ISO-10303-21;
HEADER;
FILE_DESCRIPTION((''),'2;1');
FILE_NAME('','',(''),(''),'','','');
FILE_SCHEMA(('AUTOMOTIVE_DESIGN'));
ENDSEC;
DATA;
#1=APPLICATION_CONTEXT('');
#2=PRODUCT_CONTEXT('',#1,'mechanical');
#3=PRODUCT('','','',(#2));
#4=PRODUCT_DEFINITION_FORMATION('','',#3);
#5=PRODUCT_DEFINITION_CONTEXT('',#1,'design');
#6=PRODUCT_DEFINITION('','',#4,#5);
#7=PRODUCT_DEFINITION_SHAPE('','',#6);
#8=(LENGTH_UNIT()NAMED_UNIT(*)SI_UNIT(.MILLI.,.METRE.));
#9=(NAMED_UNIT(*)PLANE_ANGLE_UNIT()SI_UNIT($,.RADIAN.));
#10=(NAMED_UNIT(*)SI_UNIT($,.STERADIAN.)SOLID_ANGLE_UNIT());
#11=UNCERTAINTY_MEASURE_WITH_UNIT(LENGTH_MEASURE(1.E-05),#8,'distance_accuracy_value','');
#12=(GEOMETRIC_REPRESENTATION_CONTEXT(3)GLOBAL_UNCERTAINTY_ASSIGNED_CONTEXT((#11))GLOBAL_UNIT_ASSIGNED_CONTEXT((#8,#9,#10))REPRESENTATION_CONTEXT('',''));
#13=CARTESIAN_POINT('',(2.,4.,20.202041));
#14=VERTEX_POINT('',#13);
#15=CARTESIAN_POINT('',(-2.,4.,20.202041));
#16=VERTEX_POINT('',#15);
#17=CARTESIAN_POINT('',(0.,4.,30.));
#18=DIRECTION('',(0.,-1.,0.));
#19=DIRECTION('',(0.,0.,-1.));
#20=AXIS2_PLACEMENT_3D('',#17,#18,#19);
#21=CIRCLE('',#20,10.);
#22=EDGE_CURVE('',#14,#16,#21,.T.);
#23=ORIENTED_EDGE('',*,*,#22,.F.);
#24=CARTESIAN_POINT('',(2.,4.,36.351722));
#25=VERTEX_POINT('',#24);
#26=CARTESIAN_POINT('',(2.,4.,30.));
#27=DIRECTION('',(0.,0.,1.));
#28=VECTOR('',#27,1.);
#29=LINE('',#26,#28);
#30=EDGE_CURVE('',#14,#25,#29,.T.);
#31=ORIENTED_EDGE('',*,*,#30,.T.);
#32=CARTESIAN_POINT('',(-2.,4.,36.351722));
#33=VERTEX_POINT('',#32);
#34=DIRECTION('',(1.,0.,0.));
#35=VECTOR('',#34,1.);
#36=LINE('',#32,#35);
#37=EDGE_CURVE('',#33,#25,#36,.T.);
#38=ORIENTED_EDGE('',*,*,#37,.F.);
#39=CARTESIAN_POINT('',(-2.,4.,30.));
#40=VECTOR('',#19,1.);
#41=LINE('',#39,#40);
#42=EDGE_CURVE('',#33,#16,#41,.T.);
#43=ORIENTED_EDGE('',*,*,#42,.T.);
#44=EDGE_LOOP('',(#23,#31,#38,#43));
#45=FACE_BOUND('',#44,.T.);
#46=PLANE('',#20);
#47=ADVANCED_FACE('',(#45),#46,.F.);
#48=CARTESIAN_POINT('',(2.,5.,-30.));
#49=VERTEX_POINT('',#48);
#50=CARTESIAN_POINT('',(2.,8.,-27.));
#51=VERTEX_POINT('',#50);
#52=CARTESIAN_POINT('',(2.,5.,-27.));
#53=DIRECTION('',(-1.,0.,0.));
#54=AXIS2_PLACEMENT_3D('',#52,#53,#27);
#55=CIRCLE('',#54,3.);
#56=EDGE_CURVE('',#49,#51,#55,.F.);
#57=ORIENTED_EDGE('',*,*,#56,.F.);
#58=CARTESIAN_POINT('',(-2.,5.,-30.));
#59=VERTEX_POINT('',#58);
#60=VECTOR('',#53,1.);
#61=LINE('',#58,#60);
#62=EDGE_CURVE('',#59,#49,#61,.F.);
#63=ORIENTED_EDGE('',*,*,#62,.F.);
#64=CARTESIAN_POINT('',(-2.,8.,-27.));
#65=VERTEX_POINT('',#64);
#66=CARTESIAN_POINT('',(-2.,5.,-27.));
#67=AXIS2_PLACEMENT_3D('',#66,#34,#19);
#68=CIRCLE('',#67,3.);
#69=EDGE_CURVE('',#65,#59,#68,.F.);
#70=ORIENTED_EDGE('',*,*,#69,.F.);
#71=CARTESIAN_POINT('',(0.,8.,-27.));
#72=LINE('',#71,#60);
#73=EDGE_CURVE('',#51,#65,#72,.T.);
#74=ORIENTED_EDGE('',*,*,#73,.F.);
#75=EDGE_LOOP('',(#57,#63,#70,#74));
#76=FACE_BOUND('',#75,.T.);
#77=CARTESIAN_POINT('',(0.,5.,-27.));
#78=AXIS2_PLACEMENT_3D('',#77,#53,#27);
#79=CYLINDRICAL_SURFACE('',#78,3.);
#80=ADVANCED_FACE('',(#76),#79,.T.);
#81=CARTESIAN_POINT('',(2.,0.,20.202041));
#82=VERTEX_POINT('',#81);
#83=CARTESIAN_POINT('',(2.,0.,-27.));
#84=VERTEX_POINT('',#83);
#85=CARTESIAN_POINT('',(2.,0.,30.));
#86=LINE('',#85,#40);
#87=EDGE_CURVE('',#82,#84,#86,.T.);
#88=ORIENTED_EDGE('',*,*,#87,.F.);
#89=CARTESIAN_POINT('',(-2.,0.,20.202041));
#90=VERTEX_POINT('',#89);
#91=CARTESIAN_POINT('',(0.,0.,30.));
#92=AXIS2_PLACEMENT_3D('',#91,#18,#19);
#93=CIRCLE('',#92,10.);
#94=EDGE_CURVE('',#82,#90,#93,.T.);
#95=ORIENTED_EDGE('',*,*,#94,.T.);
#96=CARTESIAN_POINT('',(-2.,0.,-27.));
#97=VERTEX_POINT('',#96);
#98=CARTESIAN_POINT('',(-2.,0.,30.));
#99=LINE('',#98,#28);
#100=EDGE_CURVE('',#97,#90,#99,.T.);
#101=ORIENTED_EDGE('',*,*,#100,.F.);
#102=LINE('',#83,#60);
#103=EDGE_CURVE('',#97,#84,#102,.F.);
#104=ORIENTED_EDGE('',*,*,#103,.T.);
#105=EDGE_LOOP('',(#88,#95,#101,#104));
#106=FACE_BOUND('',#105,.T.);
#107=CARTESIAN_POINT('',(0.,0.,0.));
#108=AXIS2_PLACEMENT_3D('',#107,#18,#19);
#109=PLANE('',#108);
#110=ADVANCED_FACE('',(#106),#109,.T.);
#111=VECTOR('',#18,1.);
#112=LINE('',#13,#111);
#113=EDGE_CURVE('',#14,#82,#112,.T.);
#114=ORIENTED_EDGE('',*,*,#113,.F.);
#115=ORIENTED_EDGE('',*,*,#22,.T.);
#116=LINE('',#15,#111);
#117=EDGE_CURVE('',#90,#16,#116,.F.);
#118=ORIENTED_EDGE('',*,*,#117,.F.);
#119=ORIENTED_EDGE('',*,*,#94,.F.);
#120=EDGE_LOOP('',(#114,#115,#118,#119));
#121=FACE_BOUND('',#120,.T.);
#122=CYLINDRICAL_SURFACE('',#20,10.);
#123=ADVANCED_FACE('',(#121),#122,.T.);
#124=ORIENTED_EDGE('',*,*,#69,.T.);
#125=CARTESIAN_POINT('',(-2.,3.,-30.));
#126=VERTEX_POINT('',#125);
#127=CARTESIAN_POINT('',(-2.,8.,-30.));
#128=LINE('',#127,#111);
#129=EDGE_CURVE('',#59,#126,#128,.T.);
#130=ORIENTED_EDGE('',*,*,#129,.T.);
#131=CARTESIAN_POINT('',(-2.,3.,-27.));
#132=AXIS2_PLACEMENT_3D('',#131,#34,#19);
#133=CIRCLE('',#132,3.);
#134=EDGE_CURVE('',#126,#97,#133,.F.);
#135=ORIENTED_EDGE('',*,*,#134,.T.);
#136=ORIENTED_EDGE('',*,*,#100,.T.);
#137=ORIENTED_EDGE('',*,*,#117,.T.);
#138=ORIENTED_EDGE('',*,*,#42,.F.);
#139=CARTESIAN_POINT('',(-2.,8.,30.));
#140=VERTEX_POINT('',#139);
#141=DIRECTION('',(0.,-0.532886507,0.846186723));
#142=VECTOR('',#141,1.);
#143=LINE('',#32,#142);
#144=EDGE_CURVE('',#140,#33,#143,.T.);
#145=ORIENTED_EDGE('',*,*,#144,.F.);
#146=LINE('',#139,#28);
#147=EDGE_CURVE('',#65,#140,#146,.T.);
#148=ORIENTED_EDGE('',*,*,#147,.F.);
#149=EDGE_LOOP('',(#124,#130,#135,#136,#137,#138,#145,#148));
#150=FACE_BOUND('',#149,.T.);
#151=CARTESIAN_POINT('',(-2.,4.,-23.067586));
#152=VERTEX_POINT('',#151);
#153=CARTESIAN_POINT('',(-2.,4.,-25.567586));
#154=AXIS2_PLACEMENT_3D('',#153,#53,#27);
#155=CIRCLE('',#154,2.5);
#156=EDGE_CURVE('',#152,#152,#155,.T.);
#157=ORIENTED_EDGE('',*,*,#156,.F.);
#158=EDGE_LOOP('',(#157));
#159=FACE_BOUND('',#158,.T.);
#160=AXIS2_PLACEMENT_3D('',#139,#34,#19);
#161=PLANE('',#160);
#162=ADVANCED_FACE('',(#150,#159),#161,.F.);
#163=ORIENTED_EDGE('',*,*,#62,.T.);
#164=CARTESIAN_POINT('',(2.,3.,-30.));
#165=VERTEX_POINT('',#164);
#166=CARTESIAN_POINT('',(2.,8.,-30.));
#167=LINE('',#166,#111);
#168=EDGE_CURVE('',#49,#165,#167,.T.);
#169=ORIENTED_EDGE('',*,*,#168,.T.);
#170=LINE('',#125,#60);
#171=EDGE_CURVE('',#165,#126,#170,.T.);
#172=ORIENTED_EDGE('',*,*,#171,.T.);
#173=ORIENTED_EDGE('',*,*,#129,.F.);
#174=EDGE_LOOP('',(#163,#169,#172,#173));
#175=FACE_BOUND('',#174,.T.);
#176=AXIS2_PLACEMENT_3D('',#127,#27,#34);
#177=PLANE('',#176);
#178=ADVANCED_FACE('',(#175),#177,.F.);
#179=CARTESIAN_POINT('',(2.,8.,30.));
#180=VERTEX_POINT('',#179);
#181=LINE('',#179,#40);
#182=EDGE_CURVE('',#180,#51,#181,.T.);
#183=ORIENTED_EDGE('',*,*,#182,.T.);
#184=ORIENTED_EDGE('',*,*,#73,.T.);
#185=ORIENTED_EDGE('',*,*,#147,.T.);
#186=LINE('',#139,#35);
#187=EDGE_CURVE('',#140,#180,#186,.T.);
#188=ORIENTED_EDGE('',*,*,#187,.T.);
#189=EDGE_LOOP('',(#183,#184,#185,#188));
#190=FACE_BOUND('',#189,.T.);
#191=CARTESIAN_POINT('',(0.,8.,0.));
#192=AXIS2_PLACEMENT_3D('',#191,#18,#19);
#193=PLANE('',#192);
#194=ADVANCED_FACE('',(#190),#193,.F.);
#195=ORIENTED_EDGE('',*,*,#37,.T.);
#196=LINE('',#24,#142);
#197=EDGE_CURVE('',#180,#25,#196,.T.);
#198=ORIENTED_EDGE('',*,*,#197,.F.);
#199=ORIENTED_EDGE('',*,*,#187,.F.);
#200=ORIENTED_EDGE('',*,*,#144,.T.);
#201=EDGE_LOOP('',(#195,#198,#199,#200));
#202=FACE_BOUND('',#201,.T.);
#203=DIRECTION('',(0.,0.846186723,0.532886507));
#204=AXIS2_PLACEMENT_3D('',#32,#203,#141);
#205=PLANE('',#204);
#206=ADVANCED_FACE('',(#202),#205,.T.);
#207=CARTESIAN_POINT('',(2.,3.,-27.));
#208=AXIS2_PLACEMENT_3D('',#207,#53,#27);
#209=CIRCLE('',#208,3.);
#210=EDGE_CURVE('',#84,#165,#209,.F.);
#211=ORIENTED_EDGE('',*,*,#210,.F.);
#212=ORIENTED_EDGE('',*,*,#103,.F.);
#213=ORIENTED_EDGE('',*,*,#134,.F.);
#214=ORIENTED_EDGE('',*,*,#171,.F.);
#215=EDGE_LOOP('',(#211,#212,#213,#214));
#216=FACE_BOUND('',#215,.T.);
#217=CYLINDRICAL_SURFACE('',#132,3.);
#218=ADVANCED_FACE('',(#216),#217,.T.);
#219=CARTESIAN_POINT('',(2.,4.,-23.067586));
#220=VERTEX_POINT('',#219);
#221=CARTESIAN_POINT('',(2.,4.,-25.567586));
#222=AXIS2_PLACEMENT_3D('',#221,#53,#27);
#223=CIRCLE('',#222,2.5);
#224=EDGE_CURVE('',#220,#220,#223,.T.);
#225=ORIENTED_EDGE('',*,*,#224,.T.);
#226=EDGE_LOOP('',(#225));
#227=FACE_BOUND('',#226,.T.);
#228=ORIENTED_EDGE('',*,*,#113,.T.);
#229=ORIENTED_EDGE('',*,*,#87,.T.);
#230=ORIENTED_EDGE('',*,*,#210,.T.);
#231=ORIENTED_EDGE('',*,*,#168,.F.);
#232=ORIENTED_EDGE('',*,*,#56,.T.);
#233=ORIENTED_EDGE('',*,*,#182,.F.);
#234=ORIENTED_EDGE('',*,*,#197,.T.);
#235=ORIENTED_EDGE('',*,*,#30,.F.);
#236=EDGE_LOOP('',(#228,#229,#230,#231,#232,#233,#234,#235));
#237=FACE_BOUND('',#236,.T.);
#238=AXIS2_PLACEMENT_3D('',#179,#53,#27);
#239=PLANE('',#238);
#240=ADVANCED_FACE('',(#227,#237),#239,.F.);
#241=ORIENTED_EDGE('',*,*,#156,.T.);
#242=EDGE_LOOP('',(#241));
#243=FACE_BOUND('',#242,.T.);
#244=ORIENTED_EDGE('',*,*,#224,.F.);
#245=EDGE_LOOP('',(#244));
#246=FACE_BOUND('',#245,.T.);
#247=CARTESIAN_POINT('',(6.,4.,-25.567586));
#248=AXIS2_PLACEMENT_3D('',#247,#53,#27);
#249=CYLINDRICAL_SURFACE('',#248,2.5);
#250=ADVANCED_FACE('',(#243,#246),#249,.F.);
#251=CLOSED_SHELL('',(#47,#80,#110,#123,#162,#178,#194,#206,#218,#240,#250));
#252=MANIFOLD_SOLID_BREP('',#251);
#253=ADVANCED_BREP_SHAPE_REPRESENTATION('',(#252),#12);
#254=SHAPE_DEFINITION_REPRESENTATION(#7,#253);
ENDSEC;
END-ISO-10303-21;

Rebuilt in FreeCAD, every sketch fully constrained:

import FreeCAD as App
import Part
import Sketcher
Q = App.Units.Quantity


def edges_at(feature, points):
    """Names of the edges that pass closest to the given points."""
    edges = feature.Shape.Edges
    near = lambda p: min(range(len(edges)), key=lambda i: edges[i].distToShape(Part.Vertex(*p))[0])
    return sorted({f"Edge{near(p) + 1}" for p in points})


def add_polygon(sketch, points):
    """Adds a closed chain of lines whose ends are joined by coincident constraints."""
    first, n = sketch.GeometryCount, len(points)
    for a, b in zip(points, points[1:] + points[:1]):
        sketch.addGeometry(Part.LineSegment(App.Vector(*a, 0), App.Vector(*b, 0)), False)
    for i in range(n):
        sketch.addConstraint(Sketcher.Constraint("Coincident", first + i, 2, first + (i + 1) % n, 1))

doc = App.newDocument("Part")
body = doc.addObject("PartDesign::Body", "Body")

sketch1 = body.newObject("Sketcher::SketchObject", "Sketch")
sketch1.AttachmentSupport = (doc.getObject("XZ_Plane"), [""])
sketch1.MapMode = "FlatFace"
add_polygon(sketch1, [(-2, -30), (-2, 30), (2, 30), (2, -30)])
sketch1.addConstraint([
    Sketcher.Constraint("Vertical", 0),
    Sketcher.Constraint("Horizontal", 1),
    Sketcher.Constraint("Vertical", 2),
    Sketcher.Constraint("Horizontal", 3),
    Sketcher.Constraint("Symmetric", 0, 2, 2, 2, -1, 1),
    Sketcher.Constraint("DistanceX", 1, 1, 1, 2, Q("4 mm")),
    Sketcher.Constraint("DistanceY", 0, 1, 0, 2, Q("60 mm")),
])
pad1 = body.newObject("PartDesign::Pad", "Pad")
pad1.Profile = sketch1
pad1.Length = 8
pad1.Reversed = True

sketch2 = body.newObject("Sketcher::SketchObject", "Sketch001")
sketch2.AttachmentSupport = (doc.getObject("YZ_Plane"), [""])
sketch2.MapMode = "FlatFace"
sketch2.AttachmentOffset = App.Placement(App.Vector(0, 0, -2), App.Rotation())
sketch2.addGeometry(Part.Circle(App.Vector(4, -25.6, 0), App.Vector(0, 0, 1), 2.5), False)
sketch2.addConstraint([
    Sketcher.Constraint("Diameter", 0, Q("5 mm")),
    Sketcher.Constraint("DistanceX", -1, 1, 0, 3, Q("4 mm")),
    Sketcher.Constraint("DistanceY", 0, 3, -1, 1, Q("25.567586 mm")),
])
pocket1 = body.newObject("PartDesign::Pocket", "Pocket")
pocket1.Profile = sketch2
pocket1.Length = 8
pocket1.Reversed = True
doc.recompute()

fillet = body.newObject("PartDesign::Fillet", "Fillet")
fillet.Base = (pocket1, edges_at(pocket1, [(0, 0, -30), (0, 8, -30)]))
fillet.Radius = 3

sketch3 = body.newObject("Sketcher::SketchObject", "Sketch002")
sketch3.AttachmentSupport = (doc.getObject("XZ_Plane"), [""])
sketch3.MapMode = "FlatFace"
sketch3.addGeometry(Part.Circle(App.Vector(0, 30, 0), App.Vector(0, 0, 1), 10), False)
sketch3.addConstraint([
    Sketcher.Constraint("PointOnObject", 0, 3, -2),
    Sketcher.Constraint("Diameter", 0, Q("20 mm")),
    Sketcher.Constraint("DistanceY", -1, 1, 0, 3, Q("30 mm")),
])
pad2 = body.newObject("PartDesign::Pad", "Pad001")
pad2.Profile = sketch3
pad2.Length = 4
pad2.Reversed = True

sketch4 = body.newObject("Sketcher::SketchObject", "Sketch003")
sketch4.AttachmentSupport = (doc.getObject("YZ_Plane"), [""])
sketch4.MapMode = "FlatFace"
sketch4.AttachmentOffset = App.Placement(App.Vector(0, 0, 2), App.Rotation())
add_polygon(sketch4, [(4, 36.4), (4, 30), (8, 30)])
sketch4.addConstraint([
    Sketcher.Constraint("Vertical", 0),
    Sketcher.Constraint("Horizontal", 1),
    Sketcher.Constraint("DistanceX", 1, 1, 1, 2, Q("4 mm")),
    Sketcher.Constraint("DistanceX", -1, 1, 0, 2, Q("4 mm")),
    Sketcher.Constraint("DistanceY", -1, 1, 0, 2, Q("30 mm")),
    Sketcher.Constraint("DistanceY", 0, 2, 0, 1, Q("6.351722 mm")),
])
pad3 = body.newObject("PartDesign::Pad", "Pad002")
pad3.Profile = sketch4
pad3.Length = 4
pad3.Reversed = True

doc.recompute()
